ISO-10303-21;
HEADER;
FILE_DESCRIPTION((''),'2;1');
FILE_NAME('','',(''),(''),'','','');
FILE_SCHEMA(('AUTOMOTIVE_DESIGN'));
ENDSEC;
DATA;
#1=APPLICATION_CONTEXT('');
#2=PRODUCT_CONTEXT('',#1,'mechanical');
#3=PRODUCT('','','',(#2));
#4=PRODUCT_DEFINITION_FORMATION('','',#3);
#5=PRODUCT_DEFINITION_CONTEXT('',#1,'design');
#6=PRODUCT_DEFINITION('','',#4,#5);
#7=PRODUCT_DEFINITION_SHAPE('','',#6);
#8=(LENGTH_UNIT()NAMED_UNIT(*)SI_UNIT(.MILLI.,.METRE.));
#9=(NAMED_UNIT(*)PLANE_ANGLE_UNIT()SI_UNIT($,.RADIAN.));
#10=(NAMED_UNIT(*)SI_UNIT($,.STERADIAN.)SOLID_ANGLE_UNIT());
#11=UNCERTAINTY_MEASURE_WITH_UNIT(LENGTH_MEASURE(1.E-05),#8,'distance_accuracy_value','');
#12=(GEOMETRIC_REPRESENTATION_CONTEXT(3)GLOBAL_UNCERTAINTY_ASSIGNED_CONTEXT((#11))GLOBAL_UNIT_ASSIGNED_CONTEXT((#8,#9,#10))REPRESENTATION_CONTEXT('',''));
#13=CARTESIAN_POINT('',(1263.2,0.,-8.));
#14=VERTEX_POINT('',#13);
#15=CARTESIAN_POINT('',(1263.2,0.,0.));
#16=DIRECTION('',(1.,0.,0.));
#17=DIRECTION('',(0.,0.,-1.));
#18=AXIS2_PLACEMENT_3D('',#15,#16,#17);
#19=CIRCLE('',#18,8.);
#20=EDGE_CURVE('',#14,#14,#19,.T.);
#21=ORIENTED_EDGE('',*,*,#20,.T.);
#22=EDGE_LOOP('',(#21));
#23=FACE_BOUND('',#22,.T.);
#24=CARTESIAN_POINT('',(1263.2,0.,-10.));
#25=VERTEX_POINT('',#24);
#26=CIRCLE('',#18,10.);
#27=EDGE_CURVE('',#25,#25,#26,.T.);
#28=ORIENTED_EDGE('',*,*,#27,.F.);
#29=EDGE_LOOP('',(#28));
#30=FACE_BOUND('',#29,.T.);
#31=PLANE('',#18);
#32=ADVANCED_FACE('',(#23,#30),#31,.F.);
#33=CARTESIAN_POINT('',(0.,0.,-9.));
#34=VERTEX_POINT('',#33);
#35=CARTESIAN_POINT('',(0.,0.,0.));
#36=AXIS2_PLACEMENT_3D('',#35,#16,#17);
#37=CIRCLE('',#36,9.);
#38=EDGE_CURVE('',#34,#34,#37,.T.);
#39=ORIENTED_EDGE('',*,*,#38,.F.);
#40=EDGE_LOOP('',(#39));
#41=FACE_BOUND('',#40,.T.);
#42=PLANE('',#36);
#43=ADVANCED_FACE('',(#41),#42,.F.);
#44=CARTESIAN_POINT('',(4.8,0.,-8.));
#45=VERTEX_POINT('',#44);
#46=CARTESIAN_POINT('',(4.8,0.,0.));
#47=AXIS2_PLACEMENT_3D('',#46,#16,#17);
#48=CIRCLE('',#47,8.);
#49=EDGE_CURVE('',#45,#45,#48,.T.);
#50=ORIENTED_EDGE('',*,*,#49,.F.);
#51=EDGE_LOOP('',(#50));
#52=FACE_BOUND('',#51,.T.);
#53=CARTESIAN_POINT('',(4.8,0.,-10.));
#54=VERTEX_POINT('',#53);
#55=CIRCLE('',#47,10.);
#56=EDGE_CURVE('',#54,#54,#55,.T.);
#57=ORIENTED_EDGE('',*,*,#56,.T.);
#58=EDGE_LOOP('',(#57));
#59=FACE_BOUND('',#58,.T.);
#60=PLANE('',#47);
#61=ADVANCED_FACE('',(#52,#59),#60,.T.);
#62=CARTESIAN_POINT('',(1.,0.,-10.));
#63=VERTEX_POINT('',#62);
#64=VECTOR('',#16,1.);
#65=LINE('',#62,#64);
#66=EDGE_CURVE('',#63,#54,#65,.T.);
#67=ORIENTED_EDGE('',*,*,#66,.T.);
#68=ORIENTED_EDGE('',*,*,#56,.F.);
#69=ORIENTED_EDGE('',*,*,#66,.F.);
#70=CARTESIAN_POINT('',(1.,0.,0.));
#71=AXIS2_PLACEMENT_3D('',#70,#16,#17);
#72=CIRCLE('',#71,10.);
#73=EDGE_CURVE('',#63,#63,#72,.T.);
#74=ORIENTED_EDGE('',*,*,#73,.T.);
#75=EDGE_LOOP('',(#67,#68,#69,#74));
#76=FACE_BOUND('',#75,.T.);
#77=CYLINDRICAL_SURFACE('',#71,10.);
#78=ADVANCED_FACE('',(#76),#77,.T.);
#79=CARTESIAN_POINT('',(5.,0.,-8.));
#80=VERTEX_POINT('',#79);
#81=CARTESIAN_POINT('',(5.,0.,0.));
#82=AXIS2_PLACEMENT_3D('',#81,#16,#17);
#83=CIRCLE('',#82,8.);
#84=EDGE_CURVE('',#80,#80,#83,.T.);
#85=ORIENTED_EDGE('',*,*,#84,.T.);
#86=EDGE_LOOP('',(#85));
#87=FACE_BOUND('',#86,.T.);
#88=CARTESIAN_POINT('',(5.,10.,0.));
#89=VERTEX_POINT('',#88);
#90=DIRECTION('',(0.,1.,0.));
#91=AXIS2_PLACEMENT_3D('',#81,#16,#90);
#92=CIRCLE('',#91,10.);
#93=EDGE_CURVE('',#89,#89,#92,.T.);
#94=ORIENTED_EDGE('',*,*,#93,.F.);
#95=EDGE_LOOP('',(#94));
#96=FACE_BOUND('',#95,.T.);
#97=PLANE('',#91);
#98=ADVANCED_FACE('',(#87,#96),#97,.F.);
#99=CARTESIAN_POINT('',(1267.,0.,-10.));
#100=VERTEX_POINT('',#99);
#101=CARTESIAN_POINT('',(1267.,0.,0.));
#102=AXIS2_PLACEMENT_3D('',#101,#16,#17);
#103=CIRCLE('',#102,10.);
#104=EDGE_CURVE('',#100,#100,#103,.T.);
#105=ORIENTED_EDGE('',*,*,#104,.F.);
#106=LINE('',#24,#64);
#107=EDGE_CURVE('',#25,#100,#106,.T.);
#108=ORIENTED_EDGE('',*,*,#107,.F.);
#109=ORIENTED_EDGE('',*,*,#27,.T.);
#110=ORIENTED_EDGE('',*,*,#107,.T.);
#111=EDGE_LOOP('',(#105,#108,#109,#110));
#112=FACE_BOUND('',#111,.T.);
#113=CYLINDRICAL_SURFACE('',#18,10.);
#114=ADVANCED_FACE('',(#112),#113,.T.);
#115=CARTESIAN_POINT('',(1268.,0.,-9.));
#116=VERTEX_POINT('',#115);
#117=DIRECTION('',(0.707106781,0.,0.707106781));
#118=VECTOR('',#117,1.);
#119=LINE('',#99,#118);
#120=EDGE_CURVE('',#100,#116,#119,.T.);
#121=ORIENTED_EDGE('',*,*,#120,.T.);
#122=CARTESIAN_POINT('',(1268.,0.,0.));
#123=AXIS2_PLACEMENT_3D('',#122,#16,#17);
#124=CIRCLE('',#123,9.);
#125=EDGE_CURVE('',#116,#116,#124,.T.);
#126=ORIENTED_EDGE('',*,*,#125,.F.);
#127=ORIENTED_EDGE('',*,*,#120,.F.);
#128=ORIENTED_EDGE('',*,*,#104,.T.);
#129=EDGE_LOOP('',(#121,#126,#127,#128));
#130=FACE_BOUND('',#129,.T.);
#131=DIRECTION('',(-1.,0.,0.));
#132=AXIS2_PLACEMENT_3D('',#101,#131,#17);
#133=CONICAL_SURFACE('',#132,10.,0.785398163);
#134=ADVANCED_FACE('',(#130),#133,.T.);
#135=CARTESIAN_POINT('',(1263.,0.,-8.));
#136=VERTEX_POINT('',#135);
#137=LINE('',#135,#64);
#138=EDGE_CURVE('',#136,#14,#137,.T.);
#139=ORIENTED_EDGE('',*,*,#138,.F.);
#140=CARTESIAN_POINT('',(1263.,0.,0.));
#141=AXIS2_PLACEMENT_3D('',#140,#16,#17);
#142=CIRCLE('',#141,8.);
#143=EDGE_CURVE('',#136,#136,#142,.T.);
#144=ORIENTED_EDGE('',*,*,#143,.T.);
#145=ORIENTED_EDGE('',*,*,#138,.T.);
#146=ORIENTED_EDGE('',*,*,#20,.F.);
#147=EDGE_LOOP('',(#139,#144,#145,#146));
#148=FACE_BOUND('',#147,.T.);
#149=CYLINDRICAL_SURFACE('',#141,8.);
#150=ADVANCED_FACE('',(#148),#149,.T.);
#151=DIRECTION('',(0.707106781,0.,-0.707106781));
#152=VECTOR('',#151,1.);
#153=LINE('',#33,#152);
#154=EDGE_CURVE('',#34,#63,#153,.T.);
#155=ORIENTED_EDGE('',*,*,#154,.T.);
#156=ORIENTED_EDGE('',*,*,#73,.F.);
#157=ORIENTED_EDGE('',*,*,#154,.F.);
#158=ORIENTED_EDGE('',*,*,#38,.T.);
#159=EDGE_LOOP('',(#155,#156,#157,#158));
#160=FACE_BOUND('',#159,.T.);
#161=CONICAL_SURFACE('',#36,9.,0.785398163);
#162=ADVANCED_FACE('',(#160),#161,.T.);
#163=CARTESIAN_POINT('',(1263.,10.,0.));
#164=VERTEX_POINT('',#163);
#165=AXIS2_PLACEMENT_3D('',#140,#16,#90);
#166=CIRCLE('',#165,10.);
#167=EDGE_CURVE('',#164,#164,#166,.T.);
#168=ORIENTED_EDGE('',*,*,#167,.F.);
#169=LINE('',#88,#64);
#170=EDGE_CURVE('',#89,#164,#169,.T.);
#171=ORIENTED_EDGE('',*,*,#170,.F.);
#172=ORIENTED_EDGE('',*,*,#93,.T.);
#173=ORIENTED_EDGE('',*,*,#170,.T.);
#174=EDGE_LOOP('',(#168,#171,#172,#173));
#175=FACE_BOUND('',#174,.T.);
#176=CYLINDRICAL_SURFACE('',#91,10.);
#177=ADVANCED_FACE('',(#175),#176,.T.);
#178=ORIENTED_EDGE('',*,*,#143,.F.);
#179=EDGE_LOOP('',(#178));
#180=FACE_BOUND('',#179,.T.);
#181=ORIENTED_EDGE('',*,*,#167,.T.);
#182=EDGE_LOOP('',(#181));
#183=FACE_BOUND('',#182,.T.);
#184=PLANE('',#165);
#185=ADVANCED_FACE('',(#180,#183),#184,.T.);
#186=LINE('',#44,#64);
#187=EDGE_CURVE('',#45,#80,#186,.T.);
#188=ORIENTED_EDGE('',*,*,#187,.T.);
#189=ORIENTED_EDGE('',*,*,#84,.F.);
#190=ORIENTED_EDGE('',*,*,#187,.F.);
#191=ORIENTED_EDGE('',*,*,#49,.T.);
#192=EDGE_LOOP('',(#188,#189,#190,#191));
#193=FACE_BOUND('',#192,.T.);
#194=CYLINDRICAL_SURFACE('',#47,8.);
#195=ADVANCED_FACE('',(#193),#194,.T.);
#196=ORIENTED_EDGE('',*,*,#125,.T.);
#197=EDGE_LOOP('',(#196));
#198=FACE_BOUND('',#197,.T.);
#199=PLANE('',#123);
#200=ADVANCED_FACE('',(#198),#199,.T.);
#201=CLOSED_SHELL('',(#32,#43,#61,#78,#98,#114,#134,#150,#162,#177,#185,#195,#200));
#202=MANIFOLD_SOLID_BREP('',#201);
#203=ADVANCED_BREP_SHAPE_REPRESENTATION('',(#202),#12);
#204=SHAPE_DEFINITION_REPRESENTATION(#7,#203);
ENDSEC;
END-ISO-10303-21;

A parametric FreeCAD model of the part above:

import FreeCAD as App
import Part
import Sketcher
Q = App.Units.Quantity


def add_polygon(sketch, points):
    """Adds a closed chain of lines whose ends are joined by coincident constraints."""
    first, n = sketch.GeometryCount, len(points)
    for a, b in zip(points, points[1:] + points[:1]):
        sketch.addGeometry(Part.LineSegment(App.Vector(*a, 0), App.Vector(*b, 0)), False)
    for i in range(n):
        sketch.addConstraint(Sketcher.Constraint("Coincident", first + i, 2, first + (i + 1) % n, 1))

doc = App.newDocument("Part")
body = doc.addObject("PartDesign::Body", "Body")

# Sketch on XY plane
sketch1 = doc.addObject("Sketcher::SketchObject", "Sketch")
body.addObject(sketch1)
sketch1.AttachmentSupport = (doc.XY_Plane, [""])
sketch1.MapMode = "FlatFace"
add_polygon(sketch1, [(5, 0), (1263, 0), (1263, 10), (5, 10)])  # lines 0-3
sketch1.addConstraint([
    Sketcher.Constraint("Horizontal", 0),
    Sketcher.Constraint("Vertical", 1),
    Sketcher.Constraint("Horizontal", 2),
    Sketcher.Constraint("Vertical", 3),
    Sketcher.Constraint("PointOnObject", 0, 2, -1),
    Sketcher.Constraint("DistanceX", 0, 1, 0, 2, Q("1258 mm")),
    Sketcher.Constraint("DistanceY", 1, 1, 1, 2, Q("10 mm")),
    Sketcher.Constraint("DistanceX", -1, 1, 0, 2, Q("1263 mm")),
])
revolution = doc.addObject("PartDesign::Revolution", "Revolution")
body.addObject(revolution)
revolution.Profile = sketch1
revolution.ReferenceAxis = (sketch1, ["H_Axis"])
revolution.Angle = 360

# Sketch on XZ plane
sketch2 = doc.addObject("Sketcher::SketchObject", "Sketch001")
body.addObject(sketch2)
sketch2.AttachmentSupport = (doc.XZ_Plane, [""])
sketch2.MapMode = "FlatFace"
add_polygon(sketch2, [(0, 0), (5, 0), (5, -8), (4.8, -8), (4.8, -10), (1, -10), (0, -9)])  # lines 0-6
sketch2.addConstraint([
    Sketcher.Constraint("Horizontal", 0),
    Sketcher.Constraint("Vertical", 1),
    Sketcher.Constraint("Horizontal", 2),
    Sketcher.Constraint("Vertical", 3),
    Sketcher.Constraint("Horizontal", 4),
    Sketcher.Constraint("Vertical", 6),
    Sketcher.Constraint("Coincident", 6, 2, -1, 1),
    Sketcher.Constraint("DistanceX", 0, 1, 0, 2, Q("5 mm")),
    Sketcher.Constraint("DistanceY", 1, 2, 1, 1, Q("8 mm")),
    Sketcher.Constraint("DistanceY", 3, 2, 3, 1, Q("2 mm")),
    Sketcher.Constraint("DistanceY", 6, 1, 6, 2, Q("9 mm")),
    Sketcher.Constraint("Angle", 5, Q("135 deg")),
    Sketcher.Constraint("DistanceX", 2, 2, 2, 1, Q("0.2 mm")),
])
revolution2 = doc.addObject("PartDesign::Revolution", "Revolution001")
body.addObject(revolution2)
revolution2.Profile = sketch2
revolution2.ReferenceAxis = (sketch2, ["H_Axis"])
revolution2.Angle = 360

# Sketch on XZ plane
sketch3 = doc.addObject("Sketcher::SketchObject", "Sketch002")
body.addObject(sketch3)
sketch3.AttachmentSupport = (doc.XZ_Plane, [""])
sketch3.MapMode = "FlatFace"
add_polygon(sketch3, [(1263, 0), (1268, 0), (1268, -9), (1267, -10), (1263.2, -10), (1263.2, -8), (1263, -8)])  # lines 0-6
sketch3.addConstraint([
    Sketcher.Constraint("Horizontal", 0),
    Sketcher.Constraint("Vertical", 1),
    Sketcher.Constraint("Horizontal", 3),
    Sketcher.Constraint("Vertical", 4),
    Sketcher.Constraint("Horizontal", 5),
    Sketcher.Constraint("Vertical", 6),
    Sketcher.Constraint("PointOnObject", 0, 2, -1),
    Sketcher.Constraint("DistanceX", 0, 1, 0, 2, Q("5 mm")),
    Sketcher.Constraint("DistanceY", 1, 2, 1, 1, Q("9 mm")),
    Sketcher.Constraint("DistanceY", 4, 1, 4, 2, Q("2 mm")),
    Sketcher.Constraint("DistanceY", 6, 1, 6, 2, Q("8 mm")),
    Sketcher.Constraint("Angle", 2, Q("-135 deg")),
    Sketcher.Constraint("DistanceX", 3, 2, 3, 1, Q("3.8 mm")),
    Sketcher.Constraint("DistanceX", -1, 1, 0, 2, Q("1268 mm")),
])
revolution3 = doc.addObject("PartDesign::Revolution", "Revolution002")
body.addObject(revolution3)
revolution3.Profile = sketch3
revolution3.ReferenceAxis = (sketch3, ["H_Axis"])
revolution3.Angle = 360

doc.recompute()
